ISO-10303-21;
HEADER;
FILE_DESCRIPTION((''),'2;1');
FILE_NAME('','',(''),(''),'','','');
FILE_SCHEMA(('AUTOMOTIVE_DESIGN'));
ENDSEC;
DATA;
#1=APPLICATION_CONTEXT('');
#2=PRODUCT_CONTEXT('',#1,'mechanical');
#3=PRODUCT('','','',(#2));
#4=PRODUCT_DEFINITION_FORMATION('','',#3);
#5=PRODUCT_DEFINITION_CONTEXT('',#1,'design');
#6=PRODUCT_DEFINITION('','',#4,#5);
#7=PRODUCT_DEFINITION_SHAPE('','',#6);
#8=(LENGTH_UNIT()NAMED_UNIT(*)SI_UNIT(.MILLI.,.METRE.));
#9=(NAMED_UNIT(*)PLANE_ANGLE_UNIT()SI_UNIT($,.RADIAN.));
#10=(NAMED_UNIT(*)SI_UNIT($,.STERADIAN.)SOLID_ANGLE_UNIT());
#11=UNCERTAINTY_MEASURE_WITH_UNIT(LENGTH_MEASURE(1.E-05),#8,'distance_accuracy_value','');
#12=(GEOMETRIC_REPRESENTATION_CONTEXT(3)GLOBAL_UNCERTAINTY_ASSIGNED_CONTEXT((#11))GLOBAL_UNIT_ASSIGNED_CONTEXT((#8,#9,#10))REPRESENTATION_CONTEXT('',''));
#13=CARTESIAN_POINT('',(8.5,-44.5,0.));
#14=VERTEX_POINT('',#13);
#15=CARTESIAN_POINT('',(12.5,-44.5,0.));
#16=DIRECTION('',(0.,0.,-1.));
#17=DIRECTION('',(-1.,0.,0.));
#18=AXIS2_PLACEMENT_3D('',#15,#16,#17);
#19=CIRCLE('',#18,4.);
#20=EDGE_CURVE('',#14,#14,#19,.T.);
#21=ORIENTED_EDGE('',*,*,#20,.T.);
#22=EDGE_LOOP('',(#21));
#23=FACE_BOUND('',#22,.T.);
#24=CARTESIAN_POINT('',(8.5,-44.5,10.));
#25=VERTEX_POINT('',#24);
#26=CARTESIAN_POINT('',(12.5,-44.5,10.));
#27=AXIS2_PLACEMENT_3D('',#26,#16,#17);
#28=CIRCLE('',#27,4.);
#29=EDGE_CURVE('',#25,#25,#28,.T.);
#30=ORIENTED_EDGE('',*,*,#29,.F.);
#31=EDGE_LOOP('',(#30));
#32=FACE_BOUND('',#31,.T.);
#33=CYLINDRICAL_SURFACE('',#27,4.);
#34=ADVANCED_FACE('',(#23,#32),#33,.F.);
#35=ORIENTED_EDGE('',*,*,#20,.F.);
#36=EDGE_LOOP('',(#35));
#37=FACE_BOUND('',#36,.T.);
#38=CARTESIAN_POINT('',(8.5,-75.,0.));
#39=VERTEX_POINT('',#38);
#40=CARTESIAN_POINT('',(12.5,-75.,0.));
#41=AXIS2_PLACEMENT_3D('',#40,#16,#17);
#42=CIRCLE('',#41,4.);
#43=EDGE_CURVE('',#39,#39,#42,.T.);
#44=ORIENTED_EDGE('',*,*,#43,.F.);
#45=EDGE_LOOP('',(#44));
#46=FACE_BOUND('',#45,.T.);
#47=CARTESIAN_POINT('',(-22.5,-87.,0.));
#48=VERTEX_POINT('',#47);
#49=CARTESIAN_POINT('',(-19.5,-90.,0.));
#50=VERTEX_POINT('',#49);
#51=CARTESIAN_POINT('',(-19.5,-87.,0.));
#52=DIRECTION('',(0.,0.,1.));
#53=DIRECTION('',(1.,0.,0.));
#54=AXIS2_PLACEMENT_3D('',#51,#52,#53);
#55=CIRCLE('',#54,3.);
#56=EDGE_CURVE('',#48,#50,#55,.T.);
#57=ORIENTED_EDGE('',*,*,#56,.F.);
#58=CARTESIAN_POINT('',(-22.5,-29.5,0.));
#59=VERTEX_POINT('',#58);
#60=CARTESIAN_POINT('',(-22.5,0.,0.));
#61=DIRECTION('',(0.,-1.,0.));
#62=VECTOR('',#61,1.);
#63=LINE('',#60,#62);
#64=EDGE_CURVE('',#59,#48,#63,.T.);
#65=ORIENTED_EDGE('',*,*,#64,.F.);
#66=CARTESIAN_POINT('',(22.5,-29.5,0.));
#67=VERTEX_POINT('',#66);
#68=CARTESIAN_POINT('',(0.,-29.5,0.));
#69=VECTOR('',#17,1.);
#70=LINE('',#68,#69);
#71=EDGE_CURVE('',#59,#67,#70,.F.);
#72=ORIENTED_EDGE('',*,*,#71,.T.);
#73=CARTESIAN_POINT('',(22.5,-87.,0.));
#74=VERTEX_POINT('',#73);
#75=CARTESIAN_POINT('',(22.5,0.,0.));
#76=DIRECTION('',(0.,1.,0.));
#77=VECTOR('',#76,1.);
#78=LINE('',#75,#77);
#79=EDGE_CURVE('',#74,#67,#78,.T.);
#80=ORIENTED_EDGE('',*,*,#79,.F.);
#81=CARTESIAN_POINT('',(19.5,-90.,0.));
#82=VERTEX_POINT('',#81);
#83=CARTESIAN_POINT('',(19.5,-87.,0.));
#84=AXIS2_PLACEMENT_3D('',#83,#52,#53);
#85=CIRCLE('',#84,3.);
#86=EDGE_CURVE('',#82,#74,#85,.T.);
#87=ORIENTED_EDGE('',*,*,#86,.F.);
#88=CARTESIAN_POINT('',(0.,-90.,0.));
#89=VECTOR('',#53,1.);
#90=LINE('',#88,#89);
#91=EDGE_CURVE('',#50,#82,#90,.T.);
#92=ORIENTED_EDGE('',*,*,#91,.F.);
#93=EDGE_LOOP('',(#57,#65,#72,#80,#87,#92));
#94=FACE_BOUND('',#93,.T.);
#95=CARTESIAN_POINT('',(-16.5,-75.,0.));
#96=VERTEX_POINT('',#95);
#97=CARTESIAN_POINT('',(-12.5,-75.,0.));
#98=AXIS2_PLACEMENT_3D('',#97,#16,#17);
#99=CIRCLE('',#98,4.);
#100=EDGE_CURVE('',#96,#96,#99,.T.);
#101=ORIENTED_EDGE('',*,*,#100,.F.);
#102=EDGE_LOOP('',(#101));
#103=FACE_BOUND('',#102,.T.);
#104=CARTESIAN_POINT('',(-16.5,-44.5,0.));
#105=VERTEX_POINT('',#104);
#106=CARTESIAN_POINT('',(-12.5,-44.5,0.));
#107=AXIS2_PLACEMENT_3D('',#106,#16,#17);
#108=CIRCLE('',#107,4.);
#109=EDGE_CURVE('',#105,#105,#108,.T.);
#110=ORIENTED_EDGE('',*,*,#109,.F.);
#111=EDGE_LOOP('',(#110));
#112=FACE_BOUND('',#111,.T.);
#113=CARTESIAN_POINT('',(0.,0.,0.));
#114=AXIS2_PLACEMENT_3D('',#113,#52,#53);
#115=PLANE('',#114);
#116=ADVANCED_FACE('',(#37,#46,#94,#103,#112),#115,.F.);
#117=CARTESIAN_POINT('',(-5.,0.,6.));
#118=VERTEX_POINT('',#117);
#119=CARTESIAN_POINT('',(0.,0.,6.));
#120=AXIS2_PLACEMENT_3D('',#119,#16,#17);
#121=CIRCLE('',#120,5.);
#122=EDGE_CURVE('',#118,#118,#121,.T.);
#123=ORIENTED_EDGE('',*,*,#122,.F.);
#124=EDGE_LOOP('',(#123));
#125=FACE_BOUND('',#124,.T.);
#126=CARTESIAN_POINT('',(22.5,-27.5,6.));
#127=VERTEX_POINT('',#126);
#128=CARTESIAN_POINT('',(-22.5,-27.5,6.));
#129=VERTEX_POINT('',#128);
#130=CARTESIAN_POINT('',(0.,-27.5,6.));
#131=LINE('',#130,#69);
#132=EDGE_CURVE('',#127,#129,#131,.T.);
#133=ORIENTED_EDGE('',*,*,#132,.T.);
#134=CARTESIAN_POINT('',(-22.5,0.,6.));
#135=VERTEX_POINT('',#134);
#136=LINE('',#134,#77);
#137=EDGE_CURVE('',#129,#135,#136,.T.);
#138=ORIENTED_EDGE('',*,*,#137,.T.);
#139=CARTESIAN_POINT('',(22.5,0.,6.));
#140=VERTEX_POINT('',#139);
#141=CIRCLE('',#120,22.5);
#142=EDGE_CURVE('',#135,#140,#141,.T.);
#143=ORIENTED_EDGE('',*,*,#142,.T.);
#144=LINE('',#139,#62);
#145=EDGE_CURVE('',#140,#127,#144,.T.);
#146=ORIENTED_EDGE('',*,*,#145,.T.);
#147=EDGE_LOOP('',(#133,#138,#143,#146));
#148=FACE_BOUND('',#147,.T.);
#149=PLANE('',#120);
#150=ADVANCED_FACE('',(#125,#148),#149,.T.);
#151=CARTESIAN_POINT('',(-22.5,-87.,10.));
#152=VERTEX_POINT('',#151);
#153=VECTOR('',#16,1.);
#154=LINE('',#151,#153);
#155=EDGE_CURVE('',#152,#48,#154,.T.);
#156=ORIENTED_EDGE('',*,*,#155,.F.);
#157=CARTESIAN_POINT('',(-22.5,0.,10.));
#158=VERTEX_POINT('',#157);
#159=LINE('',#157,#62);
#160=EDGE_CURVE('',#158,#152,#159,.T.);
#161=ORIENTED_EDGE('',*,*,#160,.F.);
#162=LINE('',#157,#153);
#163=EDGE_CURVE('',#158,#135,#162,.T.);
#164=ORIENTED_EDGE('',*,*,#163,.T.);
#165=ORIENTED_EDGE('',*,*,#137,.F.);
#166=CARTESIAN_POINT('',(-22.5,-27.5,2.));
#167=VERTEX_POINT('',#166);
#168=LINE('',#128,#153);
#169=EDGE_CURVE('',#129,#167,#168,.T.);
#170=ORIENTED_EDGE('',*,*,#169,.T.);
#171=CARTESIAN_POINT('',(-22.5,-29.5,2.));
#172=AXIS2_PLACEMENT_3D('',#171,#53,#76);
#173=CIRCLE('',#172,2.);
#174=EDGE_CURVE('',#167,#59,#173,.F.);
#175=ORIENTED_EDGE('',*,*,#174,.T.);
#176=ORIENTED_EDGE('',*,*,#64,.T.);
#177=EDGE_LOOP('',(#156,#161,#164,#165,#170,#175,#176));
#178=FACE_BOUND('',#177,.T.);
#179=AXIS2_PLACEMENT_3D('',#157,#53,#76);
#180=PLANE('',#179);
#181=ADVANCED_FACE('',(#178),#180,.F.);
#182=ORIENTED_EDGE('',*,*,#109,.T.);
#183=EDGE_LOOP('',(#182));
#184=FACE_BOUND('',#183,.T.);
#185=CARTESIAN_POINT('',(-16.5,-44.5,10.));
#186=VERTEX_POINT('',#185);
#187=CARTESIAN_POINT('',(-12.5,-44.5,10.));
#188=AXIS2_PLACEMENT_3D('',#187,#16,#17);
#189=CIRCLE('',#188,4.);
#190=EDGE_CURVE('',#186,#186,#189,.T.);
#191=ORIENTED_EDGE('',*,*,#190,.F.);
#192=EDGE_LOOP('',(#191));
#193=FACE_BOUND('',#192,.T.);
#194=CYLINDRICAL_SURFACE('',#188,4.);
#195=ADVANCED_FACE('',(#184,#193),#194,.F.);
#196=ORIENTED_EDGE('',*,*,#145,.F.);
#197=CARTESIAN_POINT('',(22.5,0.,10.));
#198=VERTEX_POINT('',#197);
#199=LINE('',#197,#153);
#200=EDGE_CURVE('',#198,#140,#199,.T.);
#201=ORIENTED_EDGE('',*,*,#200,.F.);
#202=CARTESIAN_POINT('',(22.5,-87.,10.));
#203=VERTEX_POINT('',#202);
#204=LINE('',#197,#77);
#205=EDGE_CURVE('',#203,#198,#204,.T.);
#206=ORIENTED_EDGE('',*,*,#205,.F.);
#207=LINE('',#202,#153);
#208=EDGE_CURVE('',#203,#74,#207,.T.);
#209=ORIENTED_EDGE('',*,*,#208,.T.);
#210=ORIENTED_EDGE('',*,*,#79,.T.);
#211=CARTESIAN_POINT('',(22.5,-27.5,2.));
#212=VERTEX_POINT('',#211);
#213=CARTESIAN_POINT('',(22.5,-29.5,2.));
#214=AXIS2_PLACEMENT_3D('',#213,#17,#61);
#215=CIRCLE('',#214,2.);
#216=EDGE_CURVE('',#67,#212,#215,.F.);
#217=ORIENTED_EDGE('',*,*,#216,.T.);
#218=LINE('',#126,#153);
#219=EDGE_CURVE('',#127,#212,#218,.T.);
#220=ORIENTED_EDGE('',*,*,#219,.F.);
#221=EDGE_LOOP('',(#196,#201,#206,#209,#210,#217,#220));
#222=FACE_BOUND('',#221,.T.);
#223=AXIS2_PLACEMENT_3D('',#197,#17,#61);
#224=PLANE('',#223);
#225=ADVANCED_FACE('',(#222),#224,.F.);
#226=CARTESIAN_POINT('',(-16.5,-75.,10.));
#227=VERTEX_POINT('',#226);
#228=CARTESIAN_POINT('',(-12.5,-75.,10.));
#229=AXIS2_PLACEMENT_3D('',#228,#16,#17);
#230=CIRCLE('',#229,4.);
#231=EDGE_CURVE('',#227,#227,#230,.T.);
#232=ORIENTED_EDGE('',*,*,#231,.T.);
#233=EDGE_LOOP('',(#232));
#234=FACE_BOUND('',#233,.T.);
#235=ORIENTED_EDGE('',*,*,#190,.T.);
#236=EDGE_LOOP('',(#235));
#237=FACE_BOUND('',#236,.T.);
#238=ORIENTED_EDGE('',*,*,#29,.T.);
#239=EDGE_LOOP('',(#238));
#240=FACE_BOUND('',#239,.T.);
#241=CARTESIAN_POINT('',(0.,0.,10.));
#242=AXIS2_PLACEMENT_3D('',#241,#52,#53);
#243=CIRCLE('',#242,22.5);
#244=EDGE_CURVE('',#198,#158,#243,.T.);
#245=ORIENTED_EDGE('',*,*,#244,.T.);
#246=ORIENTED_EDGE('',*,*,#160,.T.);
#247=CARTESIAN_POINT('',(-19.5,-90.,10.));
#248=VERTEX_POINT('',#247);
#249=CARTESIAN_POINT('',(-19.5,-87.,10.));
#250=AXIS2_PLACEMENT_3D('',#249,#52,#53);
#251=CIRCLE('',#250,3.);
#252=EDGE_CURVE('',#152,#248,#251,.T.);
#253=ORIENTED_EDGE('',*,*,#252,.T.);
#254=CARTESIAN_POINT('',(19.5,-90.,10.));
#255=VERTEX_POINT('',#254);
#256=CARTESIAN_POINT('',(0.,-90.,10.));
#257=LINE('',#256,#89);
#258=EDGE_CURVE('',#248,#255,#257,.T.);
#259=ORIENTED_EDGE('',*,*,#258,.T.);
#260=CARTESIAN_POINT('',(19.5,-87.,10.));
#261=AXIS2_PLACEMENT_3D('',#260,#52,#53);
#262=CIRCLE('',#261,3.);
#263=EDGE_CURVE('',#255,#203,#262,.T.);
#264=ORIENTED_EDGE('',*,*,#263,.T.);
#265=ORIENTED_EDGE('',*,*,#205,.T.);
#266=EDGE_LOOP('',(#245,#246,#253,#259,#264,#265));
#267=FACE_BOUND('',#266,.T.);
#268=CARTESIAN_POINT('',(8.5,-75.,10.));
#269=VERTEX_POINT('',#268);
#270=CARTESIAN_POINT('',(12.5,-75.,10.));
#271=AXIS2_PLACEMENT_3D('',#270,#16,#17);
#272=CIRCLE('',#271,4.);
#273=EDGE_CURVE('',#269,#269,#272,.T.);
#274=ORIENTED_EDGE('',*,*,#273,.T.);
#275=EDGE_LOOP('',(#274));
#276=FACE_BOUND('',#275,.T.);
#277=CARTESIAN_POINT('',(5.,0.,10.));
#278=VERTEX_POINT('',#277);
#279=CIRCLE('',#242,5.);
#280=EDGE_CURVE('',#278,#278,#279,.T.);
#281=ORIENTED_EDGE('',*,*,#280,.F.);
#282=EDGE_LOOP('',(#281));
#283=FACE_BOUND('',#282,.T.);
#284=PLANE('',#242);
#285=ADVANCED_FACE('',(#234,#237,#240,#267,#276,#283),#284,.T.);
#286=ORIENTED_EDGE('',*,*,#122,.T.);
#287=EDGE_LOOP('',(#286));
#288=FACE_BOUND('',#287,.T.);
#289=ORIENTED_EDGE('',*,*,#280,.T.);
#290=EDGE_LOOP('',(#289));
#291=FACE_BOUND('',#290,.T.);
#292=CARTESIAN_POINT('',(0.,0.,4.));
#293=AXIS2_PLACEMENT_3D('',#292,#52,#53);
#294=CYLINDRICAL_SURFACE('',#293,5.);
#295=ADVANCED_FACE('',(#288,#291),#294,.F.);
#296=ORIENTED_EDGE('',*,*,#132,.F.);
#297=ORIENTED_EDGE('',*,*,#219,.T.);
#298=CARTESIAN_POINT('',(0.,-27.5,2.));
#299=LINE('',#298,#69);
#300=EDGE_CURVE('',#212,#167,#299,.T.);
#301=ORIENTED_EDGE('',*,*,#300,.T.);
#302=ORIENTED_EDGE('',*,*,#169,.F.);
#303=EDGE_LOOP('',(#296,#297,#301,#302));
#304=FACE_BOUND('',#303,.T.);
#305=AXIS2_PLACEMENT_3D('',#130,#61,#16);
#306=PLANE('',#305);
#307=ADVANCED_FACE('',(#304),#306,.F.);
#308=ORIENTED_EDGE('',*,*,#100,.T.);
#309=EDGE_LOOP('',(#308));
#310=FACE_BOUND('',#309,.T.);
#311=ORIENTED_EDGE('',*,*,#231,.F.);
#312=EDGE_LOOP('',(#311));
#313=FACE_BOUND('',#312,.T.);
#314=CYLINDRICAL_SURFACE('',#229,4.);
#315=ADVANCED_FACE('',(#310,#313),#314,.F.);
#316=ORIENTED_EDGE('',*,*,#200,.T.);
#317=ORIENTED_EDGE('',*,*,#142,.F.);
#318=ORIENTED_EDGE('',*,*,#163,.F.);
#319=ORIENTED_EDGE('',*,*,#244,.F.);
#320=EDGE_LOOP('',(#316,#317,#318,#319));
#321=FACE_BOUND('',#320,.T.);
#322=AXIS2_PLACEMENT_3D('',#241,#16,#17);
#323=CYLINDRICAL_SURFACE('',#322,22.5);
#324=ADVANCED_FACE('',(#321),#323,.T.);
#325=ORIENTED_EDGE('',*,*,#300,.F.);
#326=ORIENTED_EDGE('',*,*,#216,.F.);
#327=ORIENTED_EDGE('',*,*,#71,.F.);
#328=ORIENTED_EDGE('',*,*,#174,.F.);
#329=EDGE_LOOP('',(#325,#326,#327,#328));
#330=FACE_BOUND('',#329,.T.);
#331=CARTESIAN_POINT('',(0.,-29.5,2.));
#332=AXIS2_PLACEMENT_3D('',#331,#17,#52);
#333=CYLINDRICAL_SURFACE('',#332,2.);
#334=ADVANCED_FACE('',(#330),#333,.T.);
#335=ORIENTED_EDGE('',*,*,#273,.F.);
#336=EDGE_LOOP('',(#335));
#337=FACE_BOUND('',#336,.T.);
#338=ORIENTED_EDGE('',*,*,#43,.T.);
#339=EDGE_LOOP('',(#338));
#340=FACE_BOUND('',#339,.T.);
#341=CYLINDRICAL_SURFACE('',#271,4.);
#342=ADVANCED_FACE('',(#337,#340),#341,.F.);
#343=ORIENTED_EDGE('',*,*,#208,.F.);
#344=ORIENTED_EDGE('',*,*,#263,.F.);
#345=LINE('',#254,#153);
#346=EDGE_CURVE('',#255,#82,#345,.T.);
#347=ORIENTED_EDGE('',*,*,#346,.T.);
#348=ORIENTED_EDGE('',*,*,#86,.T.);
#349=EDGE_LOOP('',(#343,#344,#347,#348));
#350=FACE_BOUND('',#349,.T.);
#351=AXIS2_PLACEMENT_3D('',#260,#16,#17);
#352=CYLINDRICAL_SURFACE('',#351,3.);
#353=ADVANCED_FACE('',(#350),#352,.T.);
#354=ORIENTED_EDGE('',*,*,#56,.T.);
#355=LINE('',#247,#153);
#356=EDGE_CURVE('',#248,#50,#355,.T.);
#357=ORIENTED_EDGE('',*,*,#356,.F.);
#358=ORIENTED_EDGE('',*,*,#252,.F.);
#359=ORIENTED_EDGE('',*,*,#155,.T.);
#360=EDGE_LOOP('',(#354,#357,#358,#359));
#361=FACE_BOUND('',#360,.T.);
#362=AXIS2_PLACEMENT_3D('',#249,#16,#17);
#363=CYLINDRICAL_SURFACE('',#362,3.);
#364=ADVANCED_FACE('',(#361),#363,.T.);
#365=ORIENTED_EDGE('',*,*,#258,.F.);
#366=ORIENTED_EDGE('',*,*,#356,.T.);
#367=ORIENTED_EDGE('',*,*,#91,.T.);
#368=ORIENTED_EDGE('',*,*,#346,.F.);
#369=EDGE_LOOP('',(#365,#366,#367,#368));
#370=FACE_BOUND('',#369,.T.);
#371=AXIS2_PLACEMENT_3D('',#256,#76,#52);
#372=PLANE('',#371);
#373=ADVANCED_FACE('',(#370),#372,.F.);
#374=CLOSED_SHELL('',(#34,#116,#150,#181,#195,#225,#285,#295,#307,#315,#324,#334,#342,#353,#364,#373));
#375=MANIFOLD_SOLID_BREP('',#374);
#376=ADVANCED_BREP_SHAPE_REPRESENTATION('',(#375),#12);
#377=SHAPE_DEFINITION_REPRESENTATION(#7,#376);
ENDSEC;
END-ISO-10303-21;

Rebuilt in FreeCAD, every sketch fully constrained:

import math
import FreeCAD as App
import Part
import Sketcher

V = App.Vector


def edges_at(feature, points):
    """Names of the edges that pass closest to the given points."""
    edges = feature.Shape.Edges
    near = lambda p: min(range(len(edges)), key=lambda i: edges[i].distToShape(Part.Vertex(*p))[0])
    return sorted({f"Edge{near(p) + 1}" for p in points})

doc = App.newDocument("Part")
body = doc.addObject("PartDesign::Body", "Body")

sketch1 = doc.addObject("Sketcher::SketchObject", "Sketch")
body.addObject(sketch1)
sketch1.AttachmentSupport = (doc.XY_Plane, [""])
sketch1.MapMode = "FlatFace"
sketch1.addGeometry([
    Part.LineSegment(V(-22.5, 0, 0), V(-22.5, -87, 0)),
    Part.ArcOfCircle(Part.Circle(V(-19.5, -87, 0), V(0, 0, 1), 3), math.radians(180), math.radians(270)),
    Part.LineSegment(V(-19.5, -90, 0), V(19.5, -90, 0)),
    Part.ArcOfCircle(Part.Circle(V(19.5, -87, 0), V(0, 0, 1), 3), math.radians(-90), math.radians(0)),
    Part.LineSegment(V(22.5, -87, 0), V(22.5, 0, 0)),
    Part.ArcOfCircle(Part.Circle(V(0, 0, 0), V(0, 0, 1), 22.5), math.radians(0), math.radians(180)),
], False)
sketch1.addConstraint([
    Sketcher.Constraint("Tangent", 0, 2, 1, 1),
    Sketcher.Constraint("Tangent", 1, 2, 2, 1),
    Sketcher.Constraint("Tangent", 2, 2, 3, 1),
    Sketcher.Constraint("Tangent", 3, 2, 4, 1),
    Sketcher.Constraint("Tangent", 4, 2, 5, 1),
    Sketcher.Constraint("Tangent", 5, 2, 0, 1),
    Sketcher.Constraint("Vertical", 0),
    Sketcher.Constraint("Horizontal", 2),
    Sketcher.Constraint("Vertical", 4),
    Sketcher.Constraint("Coincident", 5, 3, -1, 1),
    Sketcher.Constraint("Equal", 1, 3),
    Sketcher.Constraint("Radius", 1, 3.0),
    Sketcher.Constraint("Radius", 5, 22.5),
    Sketcher.Constraint("DistanceY", 0, 2, 0, 1, 87.0),
])
pad1 = doc.addObject("PartDesign::Pad", "Pad")
body.addObject(pad1)
pad1.Profile = sketch1
pad1.Length = 10

sketch2 = doc.addObject("Sketcher::SketchObject", "Sketch001")
body.addObject(sketch2)
sketch2.AttachmentSupport = (doc.XY_Plane, [""])
sketch2.MapMode = "FlatFace"
sketch2.addGeometry([
    Part.LineSegment(V(22, 0, 0), V(22, -28, 0)),
    Part.LineSegment(V(22, -28, 0), V(-22, -28, 0)),
    Part.LineSegment(V(-22, -28, 0), V(-22, 0, 0)),
    Part.ArcOfCircle(Part.Circle(V(0, 0, 0), V(0, 0, 1), 23), math.radians(90), math.radians(180)),
    Part.ArcOfCircle(Part.Circle(V(0, 0, 0), V(0, 0, 1), 23), math.radians(0), math.radians(90)),
], False)
sketch2.addConstraint([
    Sketcher.Constraint("Coincident", 0, 2, 1, 1),
    Sketcher.Constraint("Coincident", 1, 2, 2, 1),
    Sketcher.Constraint("Tangent", 2, 2, 3, 2),
    Sketcher.Constraint("Tangent", 3, 1, 4, 2),
    Sketcher.Constraint("Tangent", 4, 1, 0, 1),
    Sketcher.Constraint("Vertical", 0),
    Sketcher.Constraint("Horizontal", 1),
    Sketcher.Constraint("Vertical", 2),
    Sketcher.Constraint("Coincident", 3, 3, -1, 1),
    Sketcher.Constraint("Equal", 3, 4),
    Sketcher.Constraint("PointOnObject", 3, 1, -2),
    Sketcher.Constraint("Radius", 3, 22.5),
    Sketcher.Constraint("DistanceY", 0, 2, 0, 1, 27.5),
])
pocket1 = doc.addObject("PartDesign::Pocket", "Pocket")
body.addObject(pocket1)
pocket1.Profile = sketch2
pocket1.Length = 6
pocket1.Reversed = True
doc.recompute()

fillet = doc.addObject("PartDesign::Fillet", "Fillet")
body.addObject(fillet)
fillet.Base = (pocket1, edges_at(pocket1, [(0, -27.5, 0)]))
fillet.Radius = 2

sketch3 = doc.addObject("Sketcher::SketchObject", "Sketch002")
body.addObject(sketch3)
sketch3.AttachmentSupport = (doc.XY_Plane, [""])
sketch3.MapMode = "FlatFace"
sketch3.AttachmentOffset = App.Placement(V(0, 0, 10), App.Rotation())
sketch3.addGeometry(Part.Circle(V(0, 0, 0), V(0, 0, 1), 5), False)
sketch3.addConstraint([
    Sketcher.Constraint("Coincident", 0, 3, -1, 1),
    Sketcher.Constraint("Diameter", 0, 10.0),
])
pocket2 = doc.addObject("PartDesign::Pocket", "Pocket001")
body.addObject(pocket2)
pocket2.Profile = sketch3
pocket2.Length = 6

sketch4 = doc.addObject("Sketcher::SketchObject", "Sketch003")
body.addObject(sketch4)
sketch4.AttachmentSupport = (doc.XY_Plane, [""])
sketch4.MapMode = "FlatFace"
sketch4.addGeometry([
    Part.Circle(V(12.5, -44.5, 0), V(0, 0, 1), 4),
    Part.Circle(V(-12.5, -44.5, 0), V(0, 0, 1), 4),
    Part.Circle(V(-12.5, -75, 0), V(0, 0, 1), 4),
    Part.Circle(V(12.5, -75, 0), V(0, 0, 1), 4),
], False)
sketch4.addConstraint([
    Sketcher.Constraint("Equal", 0, 1),
    Sketcher.Constraint("Equal", 1, 2),
    Sketcher.Constraint("Equal", 2, 3),
    Sketcher.Constraint("Symmetric", 0, 3, 1, 3, -2),
    Sketcher.Constraint("Symmetric", 2, 3, 3, 3, -2),
    Sketcher.Constraint("Vertical", 1, 3, 2, 3),
    Sketcher.Constraint("Diameter", 0, 8.0),
    Sketcher.Constraint("DistanceY", 2, 3, -1, 1, 75.0),
    Sketcher.Constraint("DistanceX", 1, 3, 0, 3, 25.0),
    Sketcher.Constraint("DistanceY", 0, 3, -1, 1, 44.5),
])
pocket3 = doc.addObject("PartDesign::Pocket", "Pocket002")
body.addObject(pocket3)
pocket3.Profile = sketch4
pocket3.Type = "ThroughAll"
pocket3.Reversed = True

doc.recompute()
